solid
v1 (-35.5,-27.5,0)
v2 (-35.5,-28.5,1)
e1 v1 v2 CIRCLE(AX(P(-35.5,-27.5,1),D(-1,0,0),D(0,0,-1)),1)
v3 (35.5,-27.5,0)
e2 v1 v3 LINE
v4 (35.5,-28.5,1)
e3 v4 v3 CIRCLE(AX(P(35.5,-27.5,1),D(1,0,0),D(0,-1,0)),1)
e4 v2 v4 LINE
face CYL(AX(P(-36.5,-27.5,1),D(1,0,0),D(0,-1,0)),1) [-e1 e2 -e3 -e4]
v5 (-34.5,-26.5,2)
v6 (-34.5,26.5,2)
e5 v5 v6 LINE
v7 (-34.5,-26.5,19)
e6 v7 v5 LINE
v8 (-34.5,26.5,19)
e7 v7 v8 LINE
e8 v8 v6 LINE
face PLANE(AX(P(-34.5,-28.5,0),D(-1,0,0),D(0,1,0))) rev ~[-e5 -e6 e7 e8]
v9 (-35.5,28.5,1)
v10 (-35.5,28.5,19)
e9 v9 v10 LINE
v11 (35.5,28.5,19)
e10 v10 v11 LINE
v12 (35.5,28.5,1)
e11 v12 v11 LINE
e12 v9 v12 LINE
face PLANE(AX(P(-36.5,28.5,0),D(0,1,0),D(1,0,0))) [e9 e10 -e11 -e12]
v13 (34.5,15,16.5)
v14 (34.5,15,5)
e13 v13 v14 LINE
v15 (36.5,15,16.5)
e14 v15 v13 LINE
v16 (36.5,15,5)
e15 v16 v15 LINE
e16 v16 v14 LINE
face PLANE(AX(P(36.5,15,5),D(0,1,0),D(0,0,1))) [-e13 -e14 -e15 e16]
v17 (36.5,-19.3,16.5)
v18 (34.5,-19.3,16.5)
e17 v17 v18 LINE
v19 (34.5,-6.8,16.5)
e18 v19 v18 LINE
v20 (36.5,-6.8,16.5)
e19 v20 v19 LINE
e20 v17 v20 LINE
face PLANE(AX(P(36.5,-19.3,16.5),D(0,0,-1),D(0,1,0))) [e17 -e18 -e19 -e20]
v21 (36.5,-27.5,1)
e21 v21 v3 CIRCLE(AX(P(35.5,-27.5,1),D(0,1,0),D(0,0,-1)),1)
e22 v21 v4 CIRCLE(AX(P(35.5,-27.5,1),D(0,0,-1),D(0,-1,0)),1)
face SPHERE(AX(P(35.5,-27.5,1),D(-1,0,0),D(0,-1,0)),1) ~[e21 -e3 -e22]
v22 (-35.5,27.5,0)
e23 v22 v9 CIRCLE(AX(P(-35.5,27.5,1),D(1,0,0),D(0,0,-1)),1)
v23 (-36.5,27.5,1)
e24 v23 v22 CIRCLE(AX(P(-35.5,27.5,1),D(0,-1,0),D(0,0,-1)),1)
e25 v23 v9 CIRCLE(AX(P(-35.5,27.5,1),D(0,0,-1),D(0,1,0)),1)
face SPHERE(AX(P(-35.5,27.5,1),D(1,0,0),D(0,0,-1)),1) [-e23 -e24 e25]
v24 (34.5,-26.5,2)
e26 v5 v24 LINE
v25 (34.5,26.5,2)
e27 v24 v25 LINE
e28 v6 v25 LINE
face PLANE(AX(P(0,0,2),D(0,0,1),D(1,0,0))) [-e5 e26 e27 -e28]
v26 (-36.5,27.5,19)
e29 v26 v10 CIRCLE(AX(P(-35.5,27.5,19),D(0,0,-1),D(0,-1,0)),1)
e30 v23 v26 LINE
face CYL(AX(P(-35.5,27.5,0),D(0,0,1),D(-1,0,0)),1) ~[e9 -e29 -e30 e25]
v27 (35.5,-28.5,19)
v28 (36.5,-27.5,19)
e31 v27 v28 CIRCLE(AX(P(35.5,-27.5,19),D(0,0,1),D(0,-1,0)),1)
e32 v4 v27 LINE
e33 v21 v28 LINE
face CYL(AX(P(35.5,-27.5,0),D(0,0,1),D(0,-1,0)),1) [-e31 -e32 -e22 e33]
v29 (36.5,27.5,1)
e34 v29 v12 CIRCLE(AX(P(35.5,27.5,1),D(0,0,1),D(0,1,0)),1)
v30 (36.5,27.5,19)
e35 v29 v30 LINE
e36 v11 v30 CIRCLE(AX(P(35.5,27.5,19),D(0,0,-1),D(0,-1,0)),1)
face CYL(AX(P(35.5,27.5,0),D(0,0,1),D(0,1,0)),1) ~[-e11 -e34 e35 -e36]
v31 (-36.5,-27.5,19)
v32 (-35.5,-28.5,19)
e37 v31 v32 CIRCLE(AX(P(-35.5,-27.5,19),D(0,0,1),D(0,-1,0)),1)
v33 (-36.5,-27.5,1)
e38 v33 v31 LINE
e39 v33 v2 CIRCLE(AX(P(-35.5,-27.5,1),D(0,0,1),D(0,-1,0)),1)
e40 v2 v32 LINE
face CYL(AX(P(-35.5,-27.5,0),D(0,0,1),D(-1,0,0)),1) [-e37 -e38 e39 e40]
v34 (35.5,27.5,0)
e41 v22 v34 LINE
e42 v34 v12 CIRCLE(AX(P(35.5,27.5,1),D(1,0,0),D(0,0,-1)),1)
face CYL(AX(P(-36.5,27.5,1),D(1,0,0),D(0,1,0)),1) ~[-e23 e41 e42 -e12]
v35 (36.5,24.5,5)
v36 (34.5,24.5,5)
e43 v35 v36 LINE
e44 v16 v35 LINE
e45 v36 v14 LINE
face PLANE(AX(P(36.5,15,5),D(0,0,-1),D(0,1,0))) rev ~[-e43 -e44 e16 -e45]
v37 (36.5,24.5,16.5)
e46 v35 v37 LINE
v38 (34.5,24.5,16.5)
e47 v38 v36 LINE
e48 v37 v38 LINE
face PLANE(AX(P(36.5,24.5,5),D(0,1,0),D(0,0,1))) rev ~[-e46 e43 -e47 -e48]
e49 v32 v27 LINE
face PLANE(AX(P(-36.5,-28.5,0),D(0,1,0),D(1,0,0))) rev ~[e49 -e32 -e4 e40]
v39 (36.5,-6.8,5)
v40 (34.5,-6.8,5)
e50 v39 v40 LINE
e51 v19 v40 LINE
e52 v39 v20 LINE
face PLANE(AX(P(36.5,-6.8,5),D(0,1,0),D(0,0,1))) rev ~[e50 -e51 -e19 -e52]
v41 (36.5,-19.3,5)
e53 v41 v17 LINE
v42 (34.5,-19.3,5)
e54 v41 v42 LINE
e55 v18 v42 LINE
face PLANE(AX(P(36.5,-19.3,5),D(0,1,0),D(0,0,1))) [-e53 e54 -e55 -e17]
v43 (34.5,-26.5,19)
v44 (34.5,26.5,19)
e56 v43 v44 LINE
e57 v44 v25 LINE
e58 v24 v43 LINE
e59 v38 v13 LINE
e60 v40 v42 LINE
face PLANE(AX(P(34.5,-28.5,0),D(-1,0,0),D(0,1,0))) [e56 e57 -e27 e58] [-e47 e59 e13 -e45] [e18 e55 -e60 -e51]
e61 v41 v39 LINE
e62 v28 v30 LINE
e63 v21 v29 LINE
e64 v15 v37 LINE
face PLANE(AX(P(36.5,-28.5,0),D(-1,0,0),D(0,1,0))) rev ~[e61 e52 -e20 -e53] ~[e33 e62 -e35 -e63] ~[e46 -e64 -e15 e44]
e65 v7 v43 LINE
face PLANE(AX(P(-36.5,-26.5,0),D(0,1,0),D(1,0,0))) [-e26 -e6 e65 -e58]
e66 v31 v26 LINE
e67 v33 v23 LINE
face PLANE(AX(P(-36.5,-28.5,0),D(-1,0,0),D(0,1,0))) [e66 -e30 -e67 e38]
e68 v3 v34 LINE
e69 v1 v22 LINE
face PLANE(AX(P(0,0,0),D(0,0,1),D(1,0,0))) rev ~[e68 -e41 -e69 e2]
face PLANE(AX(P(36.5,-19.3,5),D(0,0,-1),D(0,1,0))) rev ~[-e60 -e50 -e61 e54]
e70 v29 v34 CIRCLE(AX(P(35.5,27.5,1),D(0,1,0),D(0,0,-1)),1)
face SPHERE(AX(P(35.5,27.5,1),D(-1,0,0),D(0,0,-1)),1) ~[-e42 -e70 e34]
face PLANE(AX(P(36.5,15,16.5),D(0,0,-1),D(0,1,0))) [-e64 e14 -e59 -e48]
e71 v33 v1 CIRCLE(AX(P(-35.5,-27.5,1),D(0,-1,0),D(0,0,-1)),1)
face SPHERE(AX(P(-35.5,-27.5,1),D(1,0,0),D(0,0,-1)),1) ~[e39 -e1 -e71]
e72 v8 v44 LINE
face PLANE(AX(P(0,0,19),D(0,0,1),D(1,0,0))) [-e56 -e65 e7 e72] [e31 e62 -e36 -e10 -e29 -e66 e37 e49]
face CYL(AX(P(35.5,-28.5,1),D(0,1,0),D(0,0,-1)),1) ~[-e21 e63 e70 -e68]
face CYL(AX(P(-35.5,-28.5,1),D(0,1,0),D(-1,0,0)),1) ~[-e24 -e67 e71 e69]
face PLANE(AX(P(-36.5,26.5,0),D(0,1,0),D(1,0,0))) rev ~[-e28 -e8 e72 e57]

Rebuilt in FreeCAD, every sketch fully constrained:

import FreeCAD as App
import Part
import Sketcher


def edges_at(feature, points):
    """Names of the edges that pass closest to the given points."""
    edges = feature.Shape.Edges
    near = lambda p: min(range(len(edges)), key=lambda i: edges[i].distToShape(Part.Vertex(*p))[0])
    return sorted({f"Edge{near(p) + 1}" for p in points})


def faces_at(feature, points):
    """Names of the faces that lie closest to the given points."""
    faces = feature.Shape.Faces
    near = lambda p: min(range(len(faces)), key=lambda i: faces[i].distToShape(Part.Vertex(*p))[0])
    return sorted({f"Face{near(p) + 1}" for p in points})

doc = App.newDocument("Part")
body = doc.addObject("PartDesign::Body", "Body")

# Sketch on XY plane
sketch1 = body.newObject("Sketcher::SketchObject", "Sketch")
sketch1.AttachmentSupport = (doc.getObject("XY_Plane"), [""])
sketch1.MapMode = "FlatFace"
sketch1.addGeometry(Part.LineSegment(App.Vector(-36, 28, 0), App.Vector(-36, -28, 0)), False)
sketch1.addGeometry(Part.LineSegment(App.Vector(-36, -28, 0), App.Vector(36, -28, 0)), False)
sketch1.addGeometry(Part.LineSegment(App.Vector(36, -28, 0), App.Vector(36, 28, 0)), False)
sketch1.addGeometry(Part.LineSegment(App.Vector(36, 28, 0), App.Vector(-36, 28, 0)), False)
sketch1.addConstraint(Sketcher.Constraint("Coincident", 0, 2, 1, 1))
sketch1.addConstraint(Sketcher.Constraint("Coincident", 1, 2, 2, 1))
sketch1.addConstraint(Sketcher.Constraint("Coincident", 2, 2, 3, 1))
sketch1.addConstraint(Sketcher.Constraint("Coincident", 3, 2, 0, 1))
sketch1.addConstraint(Sketcher.Constraint("Vertical", 0))
sketch1.addConstraint(Sketcher.Constraint("Horizontal", 1))
sketch1.addConstraint(Sketcher.Constraint("Vertical", 2))
sketch1.addConstraint(Sketcher.Constraint("Horizontal", 3))
sketch1.addConstraint(Sketcher.Constraint("Symmetric", 0, 2, 2, 2, -1, 1))
sketch1.addConstraint(Sketcher.Constraint("DistanceX", 1, 1, 1, 2, 73.0))
sketch1.addConstraint(Sketcher.Constraint("DistanceY", 0, 2, 0, 1, 57.0))
pad1 = body.newObject("PartDesign::Pad", "Pad")
pad1.Profile = sketch1
pad1.Length = 19
doc.recompute()

thickness = body.newObject("PartDesign::Thickness", "Thickness")
thickness.Base = (pad1, faces_at(pad1, [(0, 0, 19)]))
thickness.Value = 2
thickness.Reversed = True
thickness.Join = "Arc"

# Sketch on YZ plane
sketch2 = body.newObject("Sketcher::SketchObject", "Sketch001")
sketch2.AttachmentSupport = (doc.getObject("YZ_Plane"), [""])
sketch2.MapMode = "FlatFace"
sketch2.AttachmentOffset = App.Placement(App.Vector(0, 0, 36.5), App.Rotation())
sketch2.addGeometry(Part.LineSegment(App.Vector(-19, 16, 0), App.Vector(-19, 5, 0)), False)
sketch2.addGeometry(Part.LineSegment(App.Vector(-19, 5, 0), App.Vector(-7, 5, 0)), False)
sketch2.addGeometry(Part.LineSegment(App.Vector(-7, 5, 0), App.Vector(-7, 16, 0)), False)
sketch2.addGeometry(Part.LineSegment(App.Vector(-7, 16, 0), App.Vector(-19, 16, 0)), False)
sketch2.addConstraint(Sketcher.Constraint("Coincident", 0, 2, 1, 1))
sketch2.addConstraint(Sketcher.Constraint("Coincident", 1, 2, 2, 1))
sketch2.addConstraint(Sketcher.Constraint("Coincident", 2, 2, 3, 1))
sketch2.addConstraint(Sketcher.Constraint("Coincident", 3, 2, 0, 1))
sketch2.addConstraint(Sketcher.Constraint("Vertical", 0))
sketch2.addConstraint(Sketcher.Constraint("Horizontal", 1))
sketch2.addConstraint(Sketcher.Constraint("Vertical", 2))
sketch2.addConstraint(Sketcher.Constraint("Horizontal", 3))
sketch2.addConstraint(Sketcher.Constraint("DistanceX", 1, 1, 1, 2, 12.5))
sketch2.addConstraint(Sketcher.Constraint("DistanceY", 0, 2, 0, 1, 11.5))
sketch2.addConstraint(Sketcher.Constraint("DistanceY", -1, 1, 0, 2, 5.0))
sketch2.addConstraint(Sketcher.Constraint("DistanceX", 0, 2, -1, 1, 19.3))
pocket1 = body.newObject("PartDesign::Pocket", "Pocket")
pocket1.Profile = sketch2
pocket1.Length = 25

# Sketch on YZ plane
sketch3 = body.newObject("Sketcher::SketchObject", "Sketch002")
sketch3.AttachmentSupport = (doc.getObject("YZ_Plane"), [""])
sketch3.MapMode = "FlatFace"
sketch3.AttachmentOffset = App.Placement(App.Vector(0, 0, 36.5), App.Rotation())
sketch3.addGeometry(Part.LineSegment(App.Vector(15, 16, 0), App.Vector(15, 5, 0)), False)
sketch3.addGeometry(Part.LineSegment(App.Vector(15, 5, 0), App.Vector(24, 5, 0)), False)
sketch3.addGeometry(Part.LineSegment(App.Vector(24, 5, 0), App.Vector(24, 16, 0)), False)
sketch3.addGeometry(Part.LineSegment(App.Vector(24, 16, 0), App.Vector(15, 16, 0)), False)
sketch3.addConstraint(Sketcher.Constraint("Coincident", 0, 2, 1, 1))
sketch3.addConstraint(Sketcher.Constraint("Coincident", 1, 2, 2, 1))
sketch3.addConstraint(Sketcher.Constraint("Coincident", 2, 2, 3, 1))
sketch3.addConstraint(Sketcher.Constraint("Coincident", 3, 2, 0, 1))
sketch3.addConstraint(Sketcher.Constraint("Vertical", 0))
sketch3.addConstraint(Sketcher.Constraint("Horizontal", 1))
sketch3.addConstraint(Sketcher.Constraint("Vertical", 2))
sketch3.addConstraint(Sketcher.Constraint("Horizontal", 3))
sketch3.addConstraint(Sketcher.Constraint("DistanceX", 1, 1, 1, 2, 9.5))
sketch3.addConstraint(Sketcher.Constraint("DistanceY", 0, 2, 0, 1, 11.5))
sketch3.addConstraint(Sketcher.Constraint("DistanceX", -1, 1, 0, 2, 15.0))
sketch3.addConstraint(Sketcher.Constraint("DistanceY", -1, 1, 0, 2, 5.0))
pocket2 = body.newObject("PartDesign::Pocket", "Pocket001")
pocket2.Profile = sketch3
pocket2.Length = 25
doc.recompute()

fillet = body.newObject("PartDesign::Fillet", "Fillet")
fillet.Base = (pocket2, edges_at(pocket2, [
    (0, -28.5, 0),
    (0, 28.5, 0),
    (-36.5, 0, 0),
    (36.5, -28.5, 9.5),
    (36.5, 0, 0),
    (-36.5, -28.5, 9.5),
    (36.5, 28.5, 9.5),
    (-36.5, 28.5, 9.5),
]))
fillet.Radius = 1

doc.recompute()
